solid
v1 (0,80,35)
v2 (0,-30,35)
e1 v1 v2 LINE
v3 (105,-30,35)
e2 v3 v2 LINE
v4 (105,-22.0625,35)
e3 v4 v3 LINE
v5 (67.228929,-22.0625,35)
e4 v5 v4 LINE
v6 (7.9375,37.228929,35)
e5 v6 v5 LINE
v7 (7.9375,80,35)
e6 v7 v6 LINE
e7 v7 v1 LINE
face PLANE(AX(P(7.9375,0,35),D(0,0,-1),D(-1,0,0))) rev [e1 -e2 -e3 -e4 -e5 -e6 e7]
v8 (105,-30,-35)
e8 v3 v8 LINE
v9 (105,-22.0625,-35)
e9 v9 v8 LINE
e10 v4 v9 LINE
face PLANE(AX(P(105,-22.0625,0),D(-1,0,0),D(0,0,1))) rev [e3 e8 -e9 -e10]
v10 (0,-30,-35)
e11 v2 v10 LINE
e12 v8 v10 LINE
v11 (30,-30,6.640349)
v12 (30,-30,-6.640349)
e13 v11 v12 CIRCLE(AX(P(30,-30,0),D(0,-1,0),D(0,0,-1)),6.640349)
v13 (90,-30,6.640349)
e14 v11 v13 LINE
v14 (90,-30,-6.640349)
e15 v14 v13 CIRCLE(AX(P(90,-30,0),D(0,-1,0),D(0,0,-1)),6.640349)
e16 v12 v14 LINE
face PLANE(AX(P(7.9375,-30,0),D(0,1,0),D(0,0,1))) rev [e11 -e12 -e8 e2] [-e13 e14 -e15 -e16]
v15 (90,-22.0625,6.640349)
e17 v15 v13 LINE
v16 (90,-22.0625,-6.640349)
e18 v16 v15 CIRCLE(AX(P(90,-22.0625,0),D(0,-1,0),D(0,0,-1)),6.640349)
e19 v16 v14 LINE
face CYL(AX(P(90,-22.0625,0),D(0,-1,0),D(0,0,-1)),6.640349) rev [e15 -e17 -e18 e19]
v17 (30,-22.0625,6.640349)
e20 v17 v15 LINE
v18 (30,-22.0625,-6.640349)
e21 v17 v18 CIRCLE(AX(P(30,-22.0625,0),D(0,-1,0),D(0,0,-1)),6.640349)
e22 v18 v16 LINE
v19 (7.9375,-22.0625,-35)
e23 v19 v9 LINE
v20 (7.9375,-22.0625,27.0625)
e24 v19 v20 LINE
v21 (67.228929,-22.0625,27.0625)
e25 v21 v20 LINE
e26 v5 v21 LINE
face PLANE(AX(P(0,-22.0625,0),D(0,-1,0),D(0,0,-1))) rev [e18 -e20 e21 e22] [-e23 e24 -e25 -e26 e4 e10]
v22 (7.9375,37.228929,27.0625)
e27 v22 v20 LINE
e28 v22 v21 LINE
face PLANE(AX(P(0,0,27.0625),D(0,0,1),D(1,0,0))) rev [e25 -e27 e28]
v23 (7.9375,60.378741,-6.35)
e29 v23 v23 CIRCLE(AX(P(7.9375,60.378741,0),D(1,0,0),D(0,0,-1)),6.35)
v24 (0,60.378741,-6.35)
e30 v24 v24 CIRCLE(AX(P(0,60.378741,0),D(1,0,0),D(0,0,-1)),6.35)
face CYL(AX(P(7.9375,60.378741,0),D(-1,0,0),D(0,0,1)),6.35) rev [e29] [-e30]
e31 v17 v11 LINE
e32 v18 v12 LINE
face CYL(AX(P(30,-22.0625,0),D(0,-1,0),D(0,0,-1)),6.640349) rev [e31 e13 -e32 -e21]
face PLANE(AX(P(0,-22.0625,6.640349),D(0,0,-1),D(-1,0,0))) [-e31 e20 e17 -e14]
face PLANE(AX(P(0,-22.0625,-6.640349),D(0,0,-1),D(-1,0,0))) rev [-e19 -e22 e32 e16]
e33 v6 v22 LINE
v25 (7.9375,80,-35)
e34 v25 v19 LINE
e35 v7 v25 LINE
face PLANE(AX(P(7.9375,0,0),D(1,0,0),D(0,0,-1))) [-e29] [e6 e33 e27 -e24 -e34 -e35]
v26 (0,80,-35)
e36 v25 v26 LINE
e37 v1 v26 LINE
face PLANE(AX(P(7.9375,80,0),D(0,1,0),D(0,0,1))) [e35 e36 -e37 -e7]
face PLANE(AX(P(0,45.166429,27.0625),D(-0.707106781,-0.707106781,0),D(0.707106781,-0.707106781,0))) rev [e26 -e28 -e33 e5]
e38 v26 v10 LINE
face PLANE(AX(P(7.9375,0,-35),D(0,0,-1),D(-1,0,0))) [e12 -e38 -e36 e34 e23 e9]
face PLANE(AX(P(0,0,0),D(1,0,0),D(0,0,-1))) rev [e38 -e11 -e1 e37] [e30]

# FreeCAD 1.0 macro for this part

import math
import FreeCAD as App
import Part
import Sketcher

V = App.Vector
Q = App.Units.Quantity

doc = App.newDocument("Part")
body = doc.addObject("PartDesign::Body", "Body")

# Sketch on YZ plane
sketch1 = body.newObject("Sketcher::SketchObject", "Sketch")
sketch1.AttachmentSupport = (doc.getObject("YZ_Plane"), [""])
sketch1.MapMode = "FlatFace"
sketch1.addGeometry(Part.LineSegment(V(80, 35, 0), V(-30, 35, 0)), False)
sketch1.addGeometry(Part.LineSegment(V(-30, 35, 0), V(-30, -35, 0)), False)
sketch1.addGeometry(Part.LineSegment(V(-30, -35, 0), V(80, -35, 0)), False)
sketch1.addGeometry(Part.LineSegment(V(80, -35, 0), V(80, 35, 0)), False)
sketch1.addGeometry(Part.Circle(V(60.378741, 0, 0), V(0, 0, 1), 6.35), False)
sketch1.addConstraint(Sketcher.Constraint("Coincident", 0, 2, 1, 1))
sketch1.addConstraint(Sketcher.Constraint("Coincident", 1, 2, 2, 1))
sketch1.addConstraint(Sketcher.Constraint("Coincident", 2, 2, 3, 1))
sketch1.addConstraint(Sketcher.Constraint("Coincident", 3, 2, 0, 1))
sketch1.addConstraint(Sketcher.Constraint("Horizontal", 0))
sketch1.addConstraint(Sketcher.Constraint("Vertical", 1))
sketch1.addConstraint(Sketcher.Constraint("Horizontal", 2))
sketch1.addConstraint(Sketcher.Constraint("Vertical", 3))
sketch1.addConstraint(Sketcher.Constraint("PointOnObject", 4, 3, -1))
sketch1.addConstraint(Sketcher.Constraint("Diameter", 4, Q("12.7 mm")))
sketch1.addConstraint(Sketcher.Constraint("DistanceX", 0, 2, 0, 1, Q("110 mm")))
sketch1.addConstraint(Sketcher.Constraint("DistanceY", 1, 2, 1, 1, Q("70 mm")))
sketch1.addConstraint(Sketcher.Constraint("DistanceX", 0, 2, -1, 1, Q("30 mm")))
sketch1.addConstraint(Sketcher.Constraint("DistanceY", -1, 1, 0, 2, Q("35 mm")))
sketch1.addConstraint(Sketcher.Constraint("DistanceX", -1, 1, 4, 3, Q("60.378741 mm")))
pad1 = body.newObject("PartDesign::Pad", "Pad")
pad1.Profile = sketch1
pad1.Length = 7.9375

# Sketch on XZ plane
sketch2 = body.newObject("Sketcher::SketchObject", "Sketch001")
sketch2.AttachmentSupport = (doc.getObject("XZ_Plane"), [""])
sketch2.MapMode = "FlatFace"
sketch2.AttachmentOffset = App.Placement(V(0, 0, 30), App.Rotation())
sketch2.addGeometry(Part.LineSegment(V(7.9375, 35, 0), V(7.9375, -35, 0)), False)
sketch2.addGeometry(Part.LineSegment(V(7.9375, -35, 0), V(105, -35, 0)), False)
sketch2.addGeometry(Part.LineSegment(V(105, -35, 0), V(105, 35, 0)), False)
sketch2.addGeometry(Part.LineSegment(V(105, 35, 0), V(7.9375, 35, 0)), False)
sketch2.addGeometry(Part.LineSegment(V(90, -6.640349, 0), V(30, -6.640349, 0)), False)
sketch2.addGeometry(Part.ArcOfCircle(Part.Circle(V(30, 0, 0), V(0, 0, 1), 6.640349), math.radians(90), math.radians(270)), False)
sketch2.addGeometry(Part.LineSegment(V(30, 6.640349, 0), V(90, 6.640349, 0)), False)
sketch2.addGeometry(Part.ArcOfCircle(Part.Circle(V(90, 0, 0), V(0, 0, 1), 6.640349), math.radians(-90), math.radians(90)), False)
sketch2.addConstraint(Sketcher.Constraint("Coincident", 0, 2, 1, 1))
sketch2.addConstraint(Sketcher.Constraint("Coincident", 1, 2, 2, 1))
sketch2.addConstraint(Sketcher.Constraint("Coincident", 2, 2, 3, 1))
sketch2.addConstraint(Sketcher.Constraint("Coincident", 3, 2, 0, 1))
sketch2.addConstraint(Sketcher.Constraint("Tangent", 4, 2, 5, 2))
sketch2.addConstraint(Sketcher.Constraint("Tangent", 5, 1, 6, 1))
sketch2.addConstraint(Sketcher.Constraint("Tangent", 6, 2, 7, 2))
sketch2.addConstraint(Sketcher.Constraint("Tangent", 7, 1, 4, 1))
sketch2.addConstraint(Sketcher.Constraint("Vertical", 0))
sketch2.addConstraint(Sketcher.Constraint("Horizontal", 1))
sketch2.addConstraint(Sketcher.Constraint("Vertical", 2))
sketch2.addConstraint(Sketcher.Constraint("Horizontal", 3))
sketch2.addConstraint(Sketcher.Constraint("Horizontal", 4))
sketch2.addConstraint(Sketcher.Constraint("Horizontal", 6))
sketch2.addConstraint(Sketcher.Constraint("PointOnObject", 5, 3, -1))
sketch2.addConstraint(Sketcher.Constraint("DistanceX", 4, 2, 4, 1, Q("60 mm")))
sketch2.addConstraint(Sketcher.Constraint("DistanceY", 0, 2, 0, 1, Q("70 mm")))
sketch2.addConstraint(Sketcher.Constraint("DistanceX", -1, 1, 5, 3, Q("30 mm")))
sketch2.addConstraint(Sketcher.Constraint("DistanceY", 0, 2, -1, 1, Q("35 mm")))
sketch2.addConstraint(Sketcher.Constraint("DistanceX", -1, 1, 1, 2, Q("105 mm")))
sketch2.addConstraint(Sketcher.Constraint("Radius", 5, Q("6.640349 mm")))
sketch2.addConstraint(Sketcher.Constraint("DistanceX", 1, 1, 1, 2, Q("97.0625 mm")))
pad2 = body.newObject("PartDesign::Pad", "Pad001")
pad2.Profile = sketch2
pad2.Length = 7.9375
pad2.Reversed = True

# Sketch on XY plane
sketch3 = body.newObject("Sketcher::SketchObject", "Sketch002")
sketch3.AttachmentSupport = (doc.getObject("XY_Plane"), [""])
sketch3.MapMode = "FlatFace"
sketch3.AttachmentOffset = App.Placement(V(0, 0, 35), App.Rotation())
sketch3.addGeometry(Part.LineSegment(V(0, 45.166429, 0), V(75.166429, -30, 0)), False)
sketch3.addGeometry(Part.LineSegment(V(75.166429, -30, 0), V(0, -30, 0)), False)
sketch3.addGeometry(Part.LineSegment(V(0, -30, 0), V(0, 45.166429, 0)), False)
sketch3.addConstraint(Sketcher.Constraint("Coincident", 0, 2, 1, 1))
sketch3.addConstraint(Sketcher.Constraint("Coincident", 1, 2, 2, 1))
sketch3.addConstraint(Sketcher.Constraint("Coincident", 2, 2, 0, 1))
sketch3.addConstraint(Sketcher.Constraint("Horizontal", 1))
sketch3.addConstraint(Sketcher.Constraint("Vertical", 2))
sketch3.addConstraint(Sketcher.Constraint("PointOnObject", 1, 2, -2))
sketch3.addConstraint(Sketcher.Constraint("Equal", 1, 2))
sketch3.addConstraint(Sketcher.Constraint("DistanceY", 0, 2, -1, 1, Q("30 mm")))
sketch3.addConstraint(Sketcher.Constraint("DistanceX", 1, 2, 1, 1, Q("75.166429 mm")))
pad3 = body.newObject("PartDesign::Pad", "Pad002")
pad3.Profile = sketch3
pad3.Length = 7.9375
pad3.Reversed = True

doc.recompute()
